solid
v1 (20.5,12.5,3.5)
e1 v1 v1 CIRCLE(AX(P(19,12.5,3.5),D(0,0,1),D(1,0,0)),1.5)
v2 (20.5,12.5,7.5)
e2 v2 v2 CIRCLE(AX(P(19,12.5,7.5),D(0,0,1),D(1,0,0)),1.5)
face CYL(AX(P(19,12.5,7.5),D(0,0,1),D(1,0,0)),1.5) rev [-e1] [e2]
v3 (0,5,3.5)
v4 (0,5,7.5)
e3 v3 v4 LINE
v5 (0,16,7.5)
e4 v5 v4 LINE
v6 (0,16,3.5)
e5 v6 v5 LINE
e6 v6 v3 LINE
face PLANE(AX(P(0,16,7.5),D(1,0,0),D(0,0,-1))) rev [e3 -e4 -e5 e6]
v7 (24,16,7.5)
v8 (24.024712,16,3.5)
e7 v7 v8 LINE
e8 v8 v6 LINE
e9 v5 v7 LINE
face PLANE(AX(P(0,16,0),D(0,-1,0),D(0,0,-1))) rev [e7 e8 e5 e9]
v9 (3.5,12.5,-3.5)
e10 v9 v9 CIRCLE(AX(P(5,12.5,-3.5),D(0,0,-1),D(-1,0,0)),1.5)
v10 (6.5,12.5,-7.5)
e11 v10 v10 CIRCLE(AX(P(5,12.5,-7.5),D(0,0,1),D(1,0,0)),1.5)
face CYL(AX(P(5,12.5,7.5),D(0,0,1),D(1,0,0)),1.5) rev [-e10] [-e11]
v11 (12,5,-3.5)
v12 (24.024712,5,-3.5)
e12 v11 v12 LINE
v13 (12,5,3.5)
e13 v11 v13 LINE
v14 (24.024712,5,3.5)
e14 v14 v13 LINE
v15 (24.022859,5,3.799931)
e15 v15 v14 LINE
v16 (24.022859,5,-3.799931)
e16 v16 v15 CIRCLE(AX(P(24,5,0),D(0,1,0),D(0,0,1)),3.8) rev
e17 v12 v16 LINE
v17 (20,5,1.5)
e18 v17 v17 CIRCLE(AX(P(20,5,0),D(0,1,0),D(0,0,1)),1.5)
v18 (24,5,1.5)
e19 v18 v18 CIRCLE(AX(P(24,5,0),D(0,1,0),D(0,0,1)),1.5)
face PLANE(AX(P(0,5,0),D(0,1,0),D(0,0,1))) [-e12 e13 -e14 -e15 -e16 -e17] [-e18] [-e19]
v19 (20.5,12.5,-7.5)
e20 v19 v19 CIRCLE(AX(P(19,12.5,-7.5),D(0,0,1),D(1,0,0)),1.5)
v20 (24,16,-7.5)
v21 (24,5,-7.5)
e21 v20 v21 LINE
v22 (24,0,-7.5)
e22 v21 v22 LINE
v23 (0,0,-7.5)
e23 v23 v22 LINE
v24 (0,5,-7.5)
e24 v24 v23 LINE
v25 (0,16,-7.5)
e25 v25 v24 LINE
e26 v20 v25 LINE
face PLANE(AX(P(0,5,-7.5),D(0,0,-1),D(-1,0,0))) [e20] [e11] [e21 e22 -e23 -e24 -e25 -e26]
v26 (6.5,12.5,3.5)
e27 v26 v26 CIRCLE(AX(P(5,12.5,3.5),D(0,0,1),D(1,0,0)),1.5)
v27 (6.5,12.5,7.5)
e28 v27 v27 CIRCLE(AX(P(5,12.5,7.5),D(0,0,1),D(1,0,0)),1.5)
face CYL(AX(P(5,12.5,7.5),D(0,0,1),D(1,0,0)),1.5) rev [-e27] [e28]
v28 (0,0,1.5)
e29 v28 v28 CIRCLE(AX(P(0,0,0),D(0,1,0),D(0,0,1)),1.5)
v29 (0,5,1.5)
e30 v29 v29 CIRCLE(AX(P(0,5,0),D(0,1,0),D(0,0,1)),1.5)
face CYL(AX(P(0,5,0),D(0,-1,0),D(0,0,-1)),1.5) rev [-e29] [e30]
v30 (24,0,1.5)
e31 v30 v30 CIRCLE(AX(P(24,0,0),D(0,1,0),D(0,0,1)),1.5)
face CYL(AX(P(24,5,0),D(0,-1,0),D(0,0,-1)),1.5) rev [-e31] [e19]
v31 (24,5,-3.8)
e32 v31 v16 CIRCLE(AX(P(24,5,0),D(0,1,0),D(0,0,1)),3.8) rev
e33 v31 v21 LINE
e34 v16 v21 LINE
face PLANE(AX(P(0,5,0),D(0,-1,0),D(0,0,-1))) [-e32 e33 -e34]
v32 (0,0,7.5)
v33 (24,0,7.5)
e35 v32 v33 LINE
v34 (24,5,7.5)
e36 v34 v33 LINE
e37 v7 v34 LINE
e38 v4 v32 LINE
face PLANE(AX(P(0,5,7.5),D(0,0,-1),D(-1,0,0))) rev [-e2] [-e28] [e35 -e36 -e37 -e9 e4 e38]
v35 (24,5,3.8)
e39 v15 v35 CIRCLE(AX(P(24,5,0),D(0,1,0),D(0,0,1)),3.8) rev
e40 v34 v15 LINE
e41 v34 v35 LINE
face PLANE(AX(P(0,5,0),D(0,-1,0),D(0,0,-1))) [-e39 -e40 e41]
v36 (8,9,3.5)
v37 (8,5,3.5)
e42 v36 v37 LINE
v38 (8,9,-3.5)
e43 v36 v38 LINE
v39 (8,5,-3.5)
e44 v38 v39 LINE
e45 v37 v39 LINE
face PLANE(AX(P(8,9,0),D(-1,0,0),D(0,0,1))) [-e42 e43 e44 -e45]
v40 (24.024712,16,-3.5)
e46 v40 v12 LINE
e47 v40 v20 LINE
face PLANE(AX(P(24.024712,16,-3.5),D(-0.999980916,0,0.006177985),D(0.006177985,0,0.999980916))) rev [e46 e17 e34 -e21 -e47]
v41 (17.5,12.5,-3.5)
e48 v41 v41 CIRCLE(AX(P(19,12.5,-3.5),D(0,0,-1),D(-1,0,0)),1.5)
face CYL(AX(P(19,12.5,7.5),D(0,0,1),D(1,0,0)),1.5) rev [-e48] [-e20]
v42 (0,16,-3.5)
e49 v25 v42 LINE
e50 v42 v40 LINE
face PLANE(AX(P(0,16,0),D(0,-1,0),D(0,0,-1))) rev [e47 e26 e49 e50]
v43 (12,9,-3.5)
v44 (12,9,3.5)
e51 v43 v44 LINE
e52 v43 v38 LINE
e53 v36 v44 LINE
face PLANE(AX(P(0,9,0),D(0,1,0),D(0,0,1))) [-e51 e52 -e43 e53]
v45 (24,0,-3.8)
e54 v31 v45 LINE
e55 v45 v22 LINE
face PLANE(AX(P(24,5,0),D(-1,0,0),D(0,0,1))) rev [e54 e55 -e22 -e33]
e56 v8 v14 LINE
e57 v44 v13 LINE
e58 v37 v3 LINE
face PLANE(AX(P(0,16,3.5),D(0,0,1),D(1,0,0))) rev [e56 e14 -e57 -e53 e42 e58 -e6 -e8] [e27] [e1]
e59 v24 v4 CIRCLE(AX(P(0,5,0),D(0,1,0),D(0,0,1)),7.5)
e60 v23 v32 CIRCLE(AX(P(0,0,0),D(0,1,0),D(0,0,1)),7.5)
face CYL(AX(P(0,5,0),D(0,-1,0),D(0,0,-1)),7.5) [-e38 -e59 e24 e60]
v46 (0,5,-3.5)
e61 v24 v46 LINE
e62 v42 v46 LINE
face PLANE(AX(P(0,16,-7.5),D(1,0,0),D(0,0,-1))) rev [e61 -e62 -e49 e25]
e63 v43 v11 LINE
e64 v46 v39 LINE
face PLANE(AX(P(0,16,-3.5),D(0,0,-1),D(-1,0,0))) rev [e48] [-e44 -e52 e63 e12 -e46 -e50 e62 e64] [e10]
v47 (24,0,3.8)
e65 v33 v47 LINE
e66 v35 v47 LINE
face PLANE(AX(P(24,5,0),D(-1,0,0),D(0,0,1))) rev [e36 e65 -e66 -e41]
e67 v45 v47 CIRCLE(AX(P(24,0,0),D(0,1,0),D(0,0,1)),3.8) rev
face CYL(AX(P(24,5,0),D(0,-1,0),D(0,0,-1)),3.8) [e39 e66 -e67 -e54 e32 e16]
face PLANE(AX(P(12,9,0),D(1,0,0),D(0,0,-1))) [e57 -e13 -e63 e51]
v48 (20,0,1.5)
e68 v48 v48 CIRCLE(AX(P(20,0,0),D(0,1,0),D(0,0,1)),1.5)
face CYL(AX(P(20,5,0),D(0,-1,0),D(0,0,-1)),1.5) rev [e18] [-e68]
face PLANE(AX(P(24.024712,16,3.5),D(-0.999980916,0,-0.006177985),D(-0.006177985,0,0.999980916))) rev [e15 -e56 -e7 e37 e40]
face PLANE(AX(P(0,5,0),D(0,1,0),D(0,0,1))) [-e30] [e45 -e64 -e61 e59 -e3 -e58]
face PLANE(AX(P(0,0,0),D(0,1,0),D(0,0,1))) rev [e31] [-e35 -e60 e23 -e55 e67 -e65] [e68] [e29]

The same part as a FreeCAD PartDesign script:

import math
import FreeCAD as App
import Part
import Sketcher

V = App.Vector
Q = App.Units.Quantity


def add_polygon(sketch, points):
    """Adds a closed chain of lines whose ends are joined by coincident constraints."""
    first, n = sketch.GeometryCount, len(points)
    for a, b in zip(points, points[1:] + points[:1]):
        sketch.addGeometry(Part.LineSegment(App.Vector(*a, 0), App.Vector(*b, 0)), False)
    for i in range(n):
        sketch.addConstraint(Sketcher.Constraint("Coincident", first + i, 2, first + (i + 1) % n, 1))

doc = App.newDocument("Part")
body = doc.addObject("PartDesign::Body", "Body")

# Sketch on XZ plane
sketch1 = body.newObject("Sketcher::SketchObject", "Sketch")
sketch1.AttachmentSupport = (doc.getObject("XZ_Plane"), [""])
sketch1.MapMode = "FlatFace"
sketch1.addGeometry([
    Part.LineSegment(V(24, 7.5, 0), V(24, 3.8, 0)),  # 0
    Part.ArcOfCircle(Part.Circle(V(24, 0, 0), V(0, 0, 1), 3.8), math.radians(-90), math.radians(90)),  # 1
    Part.LineSegment(V(24, -3.8, 0), V(24, -7.5, 0)),  # 2
    Part.LineSegment(V(24, -7.5, 0), V(0, -7.5, 0)),  # 3
    Part.ArcOfCircle(Part.Circle(V(0, 0, 0), V(0, 0, 1), 7.5), math.radians(90), math.radians(270)),  # 4
    Part.LineSegment(V(0, 7.5, 0), V(24, 7.5, 0)),  # 5
    Part.Circle(V(0, 0, 0), V(0, 0, 1), 1.5),  # 6
    Part.Circle(V(20, 0, 0), V(0, 0, 1), 1.5),  # 7
    Part.Circle(V(24, 0, 0), V(0, 0, 1), 1.5),  # 8
], False)
sketch1.addConstraint([
    Sketcher.Constraint("Coincident", 0, 2, 1, 2),
    Sketcher.Constraint("Coincident", 1, 1, 2, 1),
    Sketcher.Constraint("Coincident", 2, 2, 3, 1),
    Sketcher.Constraint("Tangent", 3, 2, 4, 2),
    Sketcher.Constraint("Tangent", 4, 1, 5, 1),
    Sketcher.Constraint("Coincident", 5, 2, 0, 1),
    Sketcher.Constraint("Vertical", 0),
    Sketcher.Constraint("Vertical", 2),
    Sketcher.Constraint("Horizontal", 3),
    Sketcher.Constraint("Horizontal", 5),
    Sketcher.Constraint("Coincident", 4, 3, -1, 1),
    Sketcher.Constraint("Coincident", 6, 3, -1, 1),
    Sketcher.Constraint("Coincident", 8, 3, 1, 3),
    Sketcher.Constraint("Equal", 6, 7),
    Sketcher.Constraint("Equal", 7, 8),
    Sketcher.Constraint("Symmetric", 0, 2, 1, 1, -1),
    Sketcher.Constraint("PointOnObject", 7, 3, -1),
    Sketcher.Constraint("Vertical", 8, 3, 0, 2),
    Sketcher.Constraint("Diameter", 6, Q("3 mm")),
    Sketcher.Constraint("Radius", 1, Q("3.8 mm")),
    Sketcher.Constraint("Radius", 4, Q("7.5 mm")),
    Sketcher.Constraint("DistanceX", 3, 2, 3, 1, Q("24 mm")),
    Sketcher.Constraint("DistanceX", -1, 1, 7, 3, Q("20 mm")),
])
pad1 = body.newObject("PartDesign::Pad", "Pad")
pad1.Profile = sketch1
pad1.Length = 5
pad1.Reversed = True

# Sketch on XZ plane
sketch2 = body.newObject("Sketcher::SketchObject", "Sketch001")
sketch2.AttachmentSupport = (doc.getObject("XZ_Plane"), [""])
sketch2.MapMode = "FlatFace"
sketch2.AttachmentOffset = App.Placement(V(0, 0, -5), App.Rotation())
add_polygon(sketch2, [(0, 3.5), (0, 7.5), (24, 7.5), (24, 3.5)])  # lines 0-3
add_polygon(sketch2, [(24, -3.5), (24, -7.5), (0, -7.5), (0, -3.5)])  # lines 4-7
sketch2.addConstraint([
    Sketcher.Constraint("Vertical", 0),
    Sketcher.Constraint("Horizontal", 1),
    Sketcher.Constraint("Horizontal", 3),
    Sketcher.Constraint("Horizontal", 5),
    Sketcher.Constraint("Vertical", 6),
    Sketcher.Constraint("Horizontal", 7),
    Sketcher.Constraint("Symmetric", 0, 2, 5, 2, -1, 1),
    Sketcher.Constraint("Symmetric", 3, 2, 6, 2, -1),
    Sketcher.Constraint("Vertical", 1, 2, 4, 2),
    Sketcher.Constraint("Vertical", 2, 2, 7, 2),
    Sketcher.Constraint("DistanceX", 1, 1, 1, 2, Q("24 mm")),
    Sketcher.Constraint("DistanceY", 0, 1, 0, 2, Q("4 mm")),
    Sketcher.Constraint("DistanceY", 4, 2, 2, 2, Q("11 mm")),
    Sketcher.Constraint("DistanceX", 3, 2, 3, 1, Q("24.024712 mm")),
])
pad2 = body.newObject("PartDesign::Pad", "Pad001")
pad2.Profile = sketch2
pad2.Length = 11
pad2.Reversed = True

# Sketch on XZ plane
sketch3 = body.newObject("Sketcher::SketchObject", "Sketch002")
sketch3.AttachmentSupport = (doc.getObject("XZ_Plane"), [""])
sketch3.MapMode = "FlatFace"
sketch3.AttachmentOffset = App.Placement(V(0, 0, -5), App.Rotation())
add_polygon(sketch3, [(8, 3.5), (12, 3.5), (12, -3.5), (8, -3.5)])  # lines 0-3
sketch3.addConstraint([
    Sketcher.Constraint("Horizontal", 0),
    Sketcher.Constraint("Vertical", 1),
    Sketcher.Constraint("Horizontal", 2),
    Sketcher.Constraint("Vertical", 3),
    Sketcher.Constraint("DistanceX", 0, 1, 0, 2, Q("4 mm")),
    Sketcher.Constraint("DistanceY", 1, 2, 1, 1, Q("7 mm")),
    Sketcher.Constraint("DistanceX", -1, 1, 0, 2, Q("12 mm")),
    Sketcher.Constraint("DistanceY", -1, 1, 0, 2, Q("3.5 mm")),
])
pad3 = body.newObject("PartDesign::Pad", "Pad002")
pad3.Profile = sketch3
pad3.Length = 4
pad3.Reversed = True

# Sketch on XY plane
sketch4 = body.newObject("Sketcher::SketchObject", "Sketch003")
sketch4.AttachmentSupport = (doc.getObject("XY_Plane"), [""])
sketch4.MapMode = "FlatFace"
sketch4.AttachmentOffset = App.Placement(V(0, 0, 7.5), App.Rotation())
sketch4.addGeometry([
    Part.Circle(V(19, 12.5, 0), V(0, 0, 1), 1.5),
    Part.Circle(V(5, 12.5, 0), V(0, 0, 1), 1.5),
], False)
sketch4.addConstraint([
    Sketcher.Constraint("Equal", 0, 1),
    Sketcher.Constraint("Horizontal", 0, 3, 1, 3),
    Sketcher.Constraint("Diameter", 0, Q("3 mm")),
    Sketcher.Constraint("DistanceX", -1, 1, 0, 3, Q("19 mm")),
    Sketcher.Constraint("DistanceX", -1, 1, 1, 3, Q("5 mm")),
    Sketcher.Constraint("DistanceY", -1, 1, 0, 3, Q("12.5 mm")),
])
doc.recompute()
hole = body.newObject("PartDesign::Hole", "Hole")
hole.Profile = sketch4
hole.ThreadType = "None"
hole.Diameter = 3
hole.DepthType = "ThroughAll"

doc.recompute()
